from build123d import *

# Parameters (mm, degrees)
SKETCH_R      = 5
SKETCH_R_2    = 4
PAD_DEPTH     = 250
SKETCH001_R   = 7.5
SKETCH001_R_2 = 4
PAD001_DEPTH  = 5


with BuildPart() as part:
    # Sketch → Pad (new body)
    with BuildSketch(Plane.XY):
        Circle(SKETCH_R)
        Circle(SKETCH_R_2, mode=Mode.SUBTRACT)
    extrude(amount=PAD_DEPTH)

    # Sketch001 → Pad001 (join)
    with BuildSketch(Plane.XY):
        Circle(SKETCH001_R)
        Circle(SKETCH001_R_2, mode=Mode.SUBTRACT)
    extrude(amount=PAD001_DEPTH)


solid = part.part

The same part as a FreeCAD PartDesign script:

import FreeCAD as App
import Part
import Sketcher
Q = App.Units.Quantity

doc = App.newDocument("Part")
body = doc.addObject("PartDesign::Body", "Body")

sketch1 = doc.addObject("Sketcher::SketchObject", "Sketch")
body.addObject(sketch1)
sketch1.AttachmentSupport = (doc.XY_Plane, [""])
sketch1.MapMode = "FlatFace"
sketch1.addGeometry(Part.Circle(App.Vector(0, 0, 0), App.Vector(0, 0, 1), 5), False)
sketch1.addGeometry(Part.Circle(App.Vector(0, 0, 0), App.Vector(0, 0, 1), 4), False)
sketch1.addConstraint(Sketcher.Constraint("Coincident", 0, 3, -1, 1))
sketch1.addConstraint(Sketcher.Constraint("Coincident", 1, 3, -1, 1))
sketch1.addConstraint(Sketcher.Constraint("Diameter", 0, Q("10 mm")))
sketch1.addConstraint(Sketcher.Constraint("Diameter", 1, Q("8 mm")))
pad1 = doc.addObject("PartDesign::Pad", "Pad")
body.addObject(pad1)
pad1.Profile = sketch1
pad1.Length = 250

sketch2 = doc.addObject("Sketcher::SketchObject", "Sketch001")
body.addObject(sketch2)
sketch2.AttachmentSupport = (doc.XY_Plane, [""])
sketch2.MapMode = "FlatFace"
sketch2.addGeometry(Part.Circle(App.Vector(0, 0, 0), App.Vector(0, 0, 1), 7.5), False)
sketch2.addGeometry(Part.Circle(App.Vector(0, 0, 0), App.Vector(0, 0, 1), 4), False)
sketch2.addConstraint(Sketcher.Constraint("Coincident", 0, 3, -1, 1))
sketch2.addConstraint(Sketcher.Constraint("Coincident", 1, 3, -1, 1))
sketch2.addConstraint(Sketcher.Constraint("Diameter", 0, Q("15 mm")))
sketch2.addConstraint(Sketcher.Constraint("Diameter", 1, Q("8 mm")))
pad2 = doc.addObject("PartDesign::Pad", "Pad001")
body.addObject(pad2)
pad2.Profile = sketch2
pad2.Length = 5

doc.recompute()
